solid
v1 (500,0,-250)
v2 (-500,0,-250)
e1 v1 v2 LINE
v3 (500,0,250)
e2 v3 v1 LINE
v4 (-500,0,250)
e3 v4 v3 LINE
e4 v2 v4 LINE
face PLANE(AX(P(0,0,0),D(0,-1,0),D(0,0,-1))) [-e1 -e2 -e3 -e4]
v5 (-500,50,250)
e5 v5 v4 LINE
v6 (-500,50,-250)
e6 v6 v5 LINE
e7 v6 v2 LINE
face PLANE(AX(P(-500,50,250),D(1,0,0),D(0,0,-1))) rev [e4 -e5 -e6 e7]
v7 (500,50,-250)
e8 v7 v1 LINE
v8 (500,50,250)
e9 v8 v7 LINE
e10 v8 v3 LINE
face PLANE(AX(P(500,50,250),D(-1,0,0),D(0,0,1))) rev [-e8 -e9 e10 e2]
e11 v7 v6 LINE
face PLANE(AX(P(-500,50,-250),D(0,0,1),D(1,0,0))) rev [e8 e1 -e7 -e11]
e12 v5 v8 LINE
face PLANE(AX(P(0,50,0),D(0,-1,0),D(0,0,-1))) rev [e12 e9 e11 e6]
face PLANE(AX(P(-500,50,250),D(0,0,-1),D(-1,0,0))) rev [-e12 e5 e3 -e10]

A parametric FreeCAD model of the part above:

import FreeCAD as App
import Part
import Sketcher
from FreeCAD import Vector


def add_polygon(sketch, points):
    """Adds a closed chain of lines whose ends are joined by coincident constraints."""
    first, n = sketch.GeometryCount, len(points)
    for a, b in zip(points, points[1:] + points[:1]):
        sketch.addGeometry(Part.LineSegment(App.Vector(*a, 0), App.Vector(*b, 0)), False)
    for i in range(n):
        sketch.addConstraint(Sketcher.Constraint("Coincident", first + i, 2, first + (i + 1) % n, 1))

doc = App.newDocument("Part")
body = doc.addObject("PartDesign::Body", "Body")

sketch1 = body.newObject("Sketcher::SketchObject", "Sketch")
sketch1.AttachmentSupport = (doc.getObject("XZ_Plane"), [""])
sketch1.MapMode = "FlatFace"
add_polygon(sketch1, [(-500, -250), (-500, 250), (500, 250), (500, -250)])
sketch1.addConstraint(Sketcher.Constraint("Vertical", 0))
sketch1.addConstraint(Sketcher.Constraint("Horizontal", 1))
sketch1.addConstraint(Sketcher.Constraint("Vertical", 2))
sketch1.addConstraint(Sketcher.Constraint("Horizontal", 3))
sketch1.addConstraint(Sketcher.Constraint("Symmetric", 0, 2, 2, 2, -1, 1))
sketch1.addConstraint(Sketcher.Constraint("DistanceX", 1, 1, 1, 2, 1000.0))
sketch1.addConstraint(Sketcher.Constraint("DistanceY", 0, 1, 0, 2, 500.0))
pad1 = body.newObject("PartDesign::Pad", "Pad")
pad1.Profile = sketch1
pad1.Length = 50
pad1.Reversed = True

doc.recompute()
